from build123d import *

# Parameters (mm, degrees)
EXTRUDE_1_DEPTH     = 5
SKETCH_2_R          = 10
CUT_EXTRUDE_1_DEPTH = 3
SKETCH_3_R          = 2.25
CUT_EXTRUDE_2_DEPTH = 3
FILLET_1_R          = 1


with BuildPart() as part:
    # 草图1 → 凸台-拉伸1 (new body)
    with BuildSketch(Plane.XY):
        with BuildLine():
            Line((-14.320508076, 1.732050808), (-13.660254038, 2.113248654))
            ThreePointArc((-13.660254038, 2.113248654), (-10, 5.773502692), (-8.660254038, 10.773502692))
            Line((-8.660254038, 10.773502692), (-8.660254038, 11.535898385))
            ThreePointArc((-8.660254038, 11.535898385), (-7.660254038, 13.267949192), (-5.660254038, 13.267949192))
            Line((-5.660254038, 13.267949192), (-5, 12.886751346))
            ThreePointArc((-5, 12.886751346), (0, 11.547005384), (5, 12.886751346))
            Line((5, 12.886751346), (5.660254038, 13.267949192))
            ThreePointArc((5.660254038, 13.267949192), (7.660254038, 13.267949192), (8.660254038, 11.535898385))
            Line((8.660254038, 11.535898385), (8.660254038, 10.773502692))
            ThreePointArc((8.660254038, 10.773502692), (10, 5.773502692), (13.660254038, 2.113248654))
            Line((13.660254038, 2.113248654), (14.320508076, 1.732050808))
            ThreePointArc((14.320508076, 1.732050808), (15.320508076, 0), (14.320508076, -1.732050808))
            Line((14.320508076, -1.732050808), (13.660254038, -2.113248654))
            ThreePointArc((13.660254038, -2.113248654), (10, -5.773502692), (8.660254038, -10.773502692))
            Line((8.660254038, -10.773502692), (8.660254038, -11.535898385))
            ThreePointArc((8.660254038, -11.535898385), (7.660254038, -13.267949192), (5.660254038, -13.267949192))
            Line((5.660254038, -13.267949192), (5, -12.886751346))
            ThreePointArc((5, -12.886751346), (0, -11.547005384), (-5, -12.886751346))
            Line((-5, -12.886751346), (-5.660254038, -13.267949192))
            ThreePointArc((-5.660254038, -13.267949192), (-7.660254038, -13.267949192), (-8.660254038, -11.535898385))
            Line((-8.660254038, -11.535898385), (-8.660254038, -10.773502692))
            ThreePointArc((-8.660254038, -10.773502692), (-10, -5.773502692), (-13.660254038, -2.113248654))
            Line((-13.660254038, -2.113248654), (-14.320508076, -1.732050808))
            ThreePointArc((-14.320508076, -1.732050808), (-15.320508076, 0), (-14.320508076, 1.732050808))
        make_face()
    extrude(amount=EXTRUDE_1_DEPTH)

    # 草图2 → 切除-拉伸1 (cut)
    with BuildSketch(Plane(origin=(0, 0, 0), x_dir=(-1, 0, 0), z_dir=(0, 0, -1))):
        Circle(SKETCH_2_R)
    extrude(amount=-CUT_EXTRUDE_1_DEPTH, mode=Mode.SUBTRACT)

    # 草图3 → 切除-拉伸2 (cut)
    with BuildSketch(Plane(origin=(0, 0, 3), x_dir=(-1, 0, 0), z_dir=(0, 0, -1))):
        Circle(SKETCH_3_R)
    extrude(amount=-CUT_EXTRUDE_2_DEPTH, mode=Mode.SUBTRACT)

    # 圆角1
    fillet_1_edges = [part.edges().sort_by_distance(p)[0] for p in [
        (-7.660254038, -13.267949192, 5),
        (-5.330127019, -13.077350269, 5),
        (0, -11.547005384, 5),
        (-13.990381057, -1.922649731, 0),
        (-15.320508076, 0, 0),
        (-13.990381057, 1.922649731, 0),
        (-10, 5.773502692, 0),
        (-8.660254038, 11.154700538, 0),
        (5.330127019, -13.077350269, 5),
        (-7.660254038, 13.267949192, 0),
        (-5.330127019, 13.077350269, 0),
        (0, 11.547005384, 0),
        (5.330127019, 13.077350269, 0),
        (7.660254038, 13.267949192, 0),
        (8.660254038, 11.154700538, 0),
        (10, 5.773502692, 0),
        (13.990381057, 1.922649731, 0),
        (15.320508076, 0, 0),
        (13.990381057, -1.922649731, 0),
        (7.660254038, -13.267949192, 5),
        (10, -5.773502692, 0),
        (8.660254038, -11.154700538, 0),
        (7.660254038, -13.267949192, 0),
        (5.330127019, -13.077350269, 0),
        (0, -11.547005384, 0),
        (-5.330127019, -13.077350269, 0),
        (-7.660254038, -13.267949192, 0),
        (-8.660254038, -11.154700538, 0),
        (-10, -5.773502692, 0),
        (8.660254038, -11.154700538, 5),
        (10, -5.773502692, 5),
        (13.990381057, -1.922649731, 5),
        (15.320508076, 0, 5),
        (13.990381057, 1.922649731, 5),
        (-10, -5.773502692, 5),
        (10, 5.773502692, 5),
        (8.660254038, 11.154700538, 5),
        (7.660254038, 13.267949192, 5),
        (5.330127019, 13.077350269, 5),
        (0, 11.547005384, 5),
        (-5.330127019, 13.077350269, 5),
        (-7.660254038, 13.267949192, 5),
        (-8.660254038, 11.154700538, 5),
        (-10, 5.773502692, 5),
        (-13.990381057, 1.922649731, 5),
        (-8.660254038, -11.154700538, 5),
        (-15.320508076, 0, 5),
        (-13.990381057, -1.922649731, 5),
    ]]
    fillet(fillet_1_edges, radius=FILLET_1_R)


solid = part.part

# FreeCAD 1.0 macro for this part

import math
import FreeCAD as App
import Part
import Sketcher

V = App.Vector
Q = App.Units.Quantity


def edges_at(feature, points):
    """Names of the edges that pass closest to the given points."""
    edges = feature.Shape.Edges
    near = lambda p: min(range(len(edges)), key=lambda i: edges[i].distToShape(Part.Vertex(*p))[0])
    return sorted({f"Edge{near(p) + 1}" for p in points})

doc = App.newDocument("Part")
body = doc.addObject("PartDesign::Body", "Body")

# Sketch on XY plane
sketch1 = body.newObject("Sketcher::SketchObject", "Sketch")
sketch1.AttachmentSupport = (doc.getObject("XY_Plane"), [""])
sketch1.MapMode = "FlatFace"
sketch1.addGeometry([
    Part.LineSegment(V(-13.7, 2.1, 0), V(-14.3, 1.7, 0)),  # 0
    Part.ArcOfCircle(Part.Circle(V(-13.3, 0, 0), V(0, 0, 1), 2), math.radians(120), math.radians(240)),  # 1
    Part.LineSegment(V(-14.3, -1.7, 0), V(-13.7, -2.1, 0)),  # 2
    Part.ArcOfCircle(Part.Circle(V(-18.7, -10.8, 0), V(0, 0, 1), 10), math.radians(0), math.radians(60)),  # 3
    Part.LineSegment(V(-8.7, -10.8, 0), V(-8.7, -11.5, 0)),  # 4
    Part.ArcOfCircle(Part.Circle(V(-6.7, -11.5, 0), V(0, 0, 1), 2), math.radians(-180), math.radians(-60)),  # 5
    Part.LineSegment(V(-5.7, -13.3, 0), V(-5, -12.9, 0)),  # 6
    Part.ArcOfCircle(Part.Circle(V(0, -21.5, 0), V(0, 0, 1), 10), math.radians(60), math.radians(120)),  # 7
    Part.LineSegment(V(5, -12.9, 0), V(5.7, -13.3, 0)),  # 8
    Part.ArcOfCircle(Part.Circle(V(6.7, -11.5, 0), V(0, 0, 1), 2), math.radians(-120), math.radians(0)),  # 9
    Part.LineSegment(V(8.7, -11.5, 0), V(8.7, -10.8, 0)),  # 10
    Part.ArcOfCircle(Part.Circle(V(18.7, -10.8, 0), V(0, 0, 1), 10), math.radians(120), math.radians(180)),  # 11
    Part.LineSegment(V(13.7, -2.1, 0), V(14.3, -1.7, 0)),  # 12
    Part.ArcOfCircle(Part.Circle(V(13.3, 0, 0), V(0, 0, 1), 2), math.radians(-60), math.radians(60)),  # 13
    Part.LineSegment(V(14.3, 1.7, 0), V(13.7, 2.1, 0)),  # 14
    Part.ArcOfCircle(Part.Circle(V(18.7, 10.8, 0), V(0, 0, 1), 10), math.radians(180), math.radians(240)),  # 15
    Part.LineSegment(V(8.7, 10.8, 0), V(8.7, 11.5, 0)),  # 16
    Part.ArcOfCircle(Part.Circle(V(6.7, 11.5, 0), V(0, 0, 1), 2), math.radians(0), math.radians(120)),  # 17
    Part.LineSegment(V(5.7, 13.3, 0), V(5, 12.9, 0)),  # 18
    Part.ArcOfCircle(Part.Circle(V(0, 21.5, 0), V(0, 0, 1), 10), math.radians(-120), math.radians(-60)),  # 19
    Part.LineSegment(V(-5, 12.9, 0), V(-5.7, 13.3, 0)),  # 20
    Part.ArcOfCircle(Part.Circle(V(-6.7, 11.5, 0), V(0, 0, 1), 2), math.radians(60), math.radians(180)),  # 21
    Part.LineSegment(V(-8.7, 11.5, 0), V(-8.7, 10.8, 0)),  # 22
    Part.ArcOfCircle(Part.Circle(V(-18.7, 10.8, 0), V(0, 0, 1), 10), math.radians(-60), math.radians(0)),  # 23
], False)
sketch1.addConstraint([
    Sketcher.Constraint("Tangent", 0, 2, 1, 1),
    Sketcher.Constraint("Tangent", 1, 2, 2, 1),
    Sketcher.Constraint("Tangent", 2, 2, 3, 2),
    Sketcher.Constraint("Tangent", 3, 1, 4, 1),
    Sketcher.Constraint("Tangent", 4, 2, 5, 1),
    Sketcher.Constraint("Tangent", 5, 2, 6, 1),
    Sketcher.Constraint("Tangent", 6, 2, 7, 2),
    Sketcher.Constraint("Tangent", 7, 1, 8, 1),
    Sketcher.Constraint("Tangent", 8, 2, 9, 1),
    Sketcher.Constraint("Tangent", 9, 2, 10, 1),
    Sketcher.Constraint("Tangent", 10, 2, 11, 2),
    Sketcher.Constraint("Tangent", 11, 1, 12, 1),
    Sketcher.Constraint("Tangent", 12, 2, 13, 1),
    Sketcher.Constraint("Tangent", 13, 2, 14, 1),
    Sketcher.Constraint("Tangent", 14, 2, 15, 2),
    Sketcher.Constraint("Tangent", 15, 1, 16, 1),
    Sketcher.Constraint("Tangent", 16, 2, 17, 1),
    Sketcher.Constraint("Tangent", 17, 2, 18, 1),
    Sketcher.Constraint("Tangent", 18, 2, 19, 2),
    Sketcher.Constraint("Tangent", 19, 1, 20, 1),
    Sketcher.Constraint("Tangent", 20, 2, 21, 1),
    Sketcher.Constraint("Tangent", 21, 2, 22, 1),
    Sketcher.Constraint("Tangent", 22, 2, 23, 2),
    Sketcher.Constraint("Tangent", 23, 1, 0, 1),
    Sketcher.Constraint("Vertical", 4),
    Sketcher.Constraint("Vertical", 10),
    Sketcher.Constraint("Vertical", 16),
    Sketcher.Constraint("Vertical", 22),
    Sketcher.Constraint("Equal", 1, 5),
    Sketcher.Constraint("Equal", 3, 7),
    Sketcher.Constraint("Equal", 5, 9),
    Sketcher.Constraint("Equal", 7, 11),
    Sketcher.Constraint("Equal", 9, 13),
    Sketcher.Constraint("Equal", 11, 15),
    Sketcher.Constraint("Equal", 13, 17),
    Sketcher.Constraint("Equal", 15, 19),
    Sketcher.Constraint("Equal", 17, 21),
    Sketcher.Constraint("Equal", 19, 23),
    Sketcher.Constraint("Symmetric", 1, 3, 13, 3, -1, 1),
    Sketcher.Constraint("Symmetric", 3, 3, 15, 3, -1, 1),
    Sketcher.Constraint("Symmetric", 7, 3, 19, 3, -1, 1),
    Sketcher.Constraint("Symmetric", 9, 3, 21, 3, -1, 1),
    Sketcher.Constraint("Symmetric", 5, 3, 9, 3, -2),
    Sketcher.Constraint("Symmetric", 2, 2, 11, 1, -2),
    Sketcher.Constraint("Symmetric", 18, 2, 19, 1, -2),
    Sketcher.Constraint("Parallel", 0, 6),
    Sketcher.Constraint("Parallel", 2, 8),
    Sketcher.Constraint("Equal", 2, 6),
    Sketcher.Constraint("Radius", 1, 2.0),
    Sketcher.Constraint("Radius", 3, 10.0),
    Sketcher.Constraint("Angle", 0, Q("-150 deg")),
    Sketcher.Constraint("DistanceY", 5, 3, -1, 1, 11.535898),
    Sketcher.Constraint("DistanceY", 9, 3, 15, 3, 22.309401),
])
pad1 = body.newObject("PartDesign::Pad", "Pad")
pad1.Profile = sketch1
pad1.Length = 5

# Sketch on XY plane
sketch2 = body.newObject("Sketcher::SketchObject", "Sketch001")
sketch2.AttachmentSupport = (doc.getObject("XY_Plane"), [""])
sketch2.MapMode = "FlatFace"
sketch2.addGeometry(Part.Circle(V(0, 0, 0), V(0, 0, 1), 10), False)
sketch2.addConstraint([
    Sketcher.Constraint("Coincident", 0, 3, -1, 1),
    Sketcher.Constraint("Diameter", 0, 20.0),
])
pocket1 = body.newObject("PartDesign::Pocket", "Pocket")
pocket1.Profile = sketch2
pocket1.Length = 3
pocket1.Reversed = True

# Sketch on XY plane
sketch3 = body.newObject("Sketcher::SketchObject", "Sketch002")
sketch3.AttachmentSupport = (doc.getObject("XY_Plane"), [""])
sketch3.MapMode = "FlatFace"
sketch3.AttachmentOffset = App.Placement(V(0, 0, 3), App.Rotation())
sketch3.addGeometry(Part.Circle(V(0, 0, 0), V(0, 0, 1), 2.2), False)
sketch3.addConstraint([
    Sketcher.Constraint("Coincident", 0, 3, -1, 1),
    Sketcher.Constraint("Diameter", 0, 4.5),
])
pocket2 = body.newObject("PartDesign::Pocket", "Pocket001")
pocket2.Profile = sketch3
pocket2.Length = 3
pocket2.Reversed = True
doc.recompute()

fillet = body.newObject("PartDesign::Fillet", "Fillet")
fillet.Base = (pocket2, edges_at(pocket2, [
    (-7.66, -13.268, 5),
    (-5.33, -13.077, 5),
    (0, -11.547, 5),
    (-13.99, -1.923, 0),
    (-15.321, 0, 0),
    (-13.99, 1.923, 0),
    (-10, 5.774, 0),
    (-8.66, 11.155, 0),
    (5.33, -13.077, 5),
    (-7.66, 13.268, 0),
    (-5.33, 13.077, 0),
    (0, 11.547, 0),
    (5.33, 13.077, 0),
    (7.66, 13.268, 0),
    (8.66, 11.155, 0),
    (10, 5.774, 0),
    (13.99, 1.923, 0),
    (15.321, 0, 0),
    (13.99, -1.923, 0),
    (7.66, -13.268, 5),
    (10, -5.774, 0),
    (8.66, -11.155, 0),
    (7.66, -13.268, 0),
    (5.33, -13.077, 0),
    (0, -11.547, 0),
    (-5.33, -13.077, 0),
    (-7.66, -13.268, 0),
    (-8.66, -11.155, 0),
    (-10, -5.774, 0),
    (8.66, -11.155, 5),
    (10, -5.774, 5),
    (13.99, -1.923, 5),
    (15.321, 0, 5),
    (13.99, 1.923, 5),
    (-10, -5.774, 5),
    (10, 5.774, 5),
    (8.66, 11.155, 5),
    (7.66, 13.268, 5),
    (5.33, 13.077, 5),
    (0, 11.547, 5),
    (-5.33, 13.077, 5),
    (-7.66, 13.268, 5),
    (-8.66, 11.155, 5),
    (-10, 5.774, 5),
    (-13.99, 1.923, 5),
    (-8.66, -11.155, 5),
    (-15.321, 0, 5),
    (-13.99, -1.923, 5),
]))
fillet.Radius = 1

doc.recompute()
